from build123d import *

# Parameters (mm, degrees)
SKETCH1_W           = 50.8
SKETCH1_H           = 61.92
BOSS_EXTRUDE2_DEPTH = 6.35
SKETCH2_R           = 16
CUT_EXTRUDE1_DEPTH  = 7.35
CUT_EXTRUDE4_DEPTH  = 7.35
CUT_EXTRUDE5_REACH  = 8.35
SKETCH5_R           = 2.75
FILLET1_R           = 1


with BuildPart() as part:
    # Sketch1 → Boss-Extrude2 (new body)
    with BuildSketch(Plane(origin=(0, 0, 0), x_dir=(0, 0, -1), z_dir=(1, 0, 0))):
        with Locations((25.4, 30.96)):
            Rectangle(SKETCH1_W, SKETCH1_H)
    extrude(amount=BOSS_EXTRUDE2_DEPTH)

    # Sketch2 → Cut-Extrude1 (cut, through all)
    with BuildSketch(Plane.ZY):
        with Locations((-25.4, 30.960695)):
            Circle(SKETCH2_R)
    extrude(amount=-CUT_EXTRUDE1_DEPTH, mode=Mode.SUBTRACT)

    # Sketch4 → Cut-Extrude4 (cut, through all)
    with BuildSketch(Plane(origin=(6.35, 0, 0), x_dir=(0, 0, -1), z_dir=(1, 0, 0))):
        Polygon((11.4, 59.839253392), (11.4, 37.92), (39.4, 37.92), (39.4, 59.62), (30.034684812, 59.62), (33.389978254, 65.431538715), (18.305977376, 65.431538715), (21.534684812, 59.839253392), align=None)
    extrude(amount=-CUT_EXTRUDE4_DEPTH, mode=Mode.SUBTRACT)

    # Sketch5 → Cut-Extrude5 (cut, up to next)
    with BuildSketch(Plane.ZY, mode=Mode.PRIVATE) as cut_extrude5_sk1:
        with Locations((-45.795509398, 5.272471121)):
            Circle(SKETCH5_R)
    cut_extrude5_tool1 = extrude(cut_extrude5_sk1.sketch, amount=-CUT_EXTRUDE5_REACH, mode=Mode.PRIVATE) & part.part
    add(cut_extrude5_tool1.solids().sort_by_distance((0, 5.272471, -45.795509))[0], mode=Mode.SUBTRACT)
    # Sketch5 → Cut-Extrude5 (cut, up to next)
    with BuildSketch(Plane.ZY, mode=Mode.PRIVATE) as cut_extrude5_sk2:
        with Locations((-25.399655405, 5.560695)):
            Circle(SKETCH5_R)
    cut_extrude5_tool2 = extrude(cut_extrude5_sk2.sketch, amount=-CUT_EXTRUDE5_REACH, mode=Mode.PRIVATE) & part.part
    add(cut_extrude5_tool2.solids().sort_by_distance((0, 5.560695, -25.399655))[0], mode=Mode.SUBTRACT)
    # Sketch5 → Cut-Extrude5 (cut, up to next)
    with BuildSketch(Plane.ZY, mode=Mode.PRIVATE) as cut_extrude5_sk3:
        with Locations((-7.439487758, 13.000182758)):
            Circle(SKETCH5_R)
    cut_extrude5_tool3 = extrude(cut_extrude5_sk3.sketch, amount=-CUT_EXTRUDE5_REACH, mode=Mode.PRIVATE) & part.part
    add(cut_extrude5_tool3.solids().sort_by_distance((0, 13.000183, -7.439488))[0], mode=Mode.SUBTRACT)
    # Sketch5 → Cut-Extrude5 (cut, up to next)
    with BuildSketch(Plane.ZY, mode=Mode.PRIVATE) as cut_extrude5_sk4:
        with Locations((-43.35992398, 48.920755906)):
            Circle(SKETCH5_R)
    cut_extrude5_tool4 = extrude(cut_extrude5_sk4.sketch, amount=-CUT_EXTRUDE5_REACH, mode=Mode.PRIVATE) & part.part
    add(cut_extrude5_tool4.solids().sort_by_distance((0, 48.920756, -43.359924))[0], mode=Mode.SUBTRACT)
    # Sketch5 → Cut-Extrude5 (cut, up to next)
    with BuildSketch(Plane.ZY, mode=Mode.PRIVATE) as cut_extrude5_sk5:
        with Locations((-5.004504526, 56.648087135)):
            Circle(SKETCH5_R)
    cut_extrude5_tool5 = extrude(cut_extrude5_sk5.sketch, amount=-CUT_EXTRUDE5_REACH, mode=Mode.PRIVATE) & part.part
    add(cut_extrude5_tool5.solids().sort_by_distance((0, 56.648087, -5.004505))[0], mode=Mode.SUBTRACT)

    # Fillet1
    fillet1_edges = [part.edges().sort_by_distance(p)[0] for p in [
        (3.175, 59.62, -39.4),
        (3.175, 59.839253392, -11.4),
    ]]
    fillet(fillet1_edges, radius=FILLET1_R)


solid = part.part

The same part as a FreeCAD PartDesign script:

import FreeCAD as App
import Part
import Sketcher

V = App.Vector
Q = App.Units.Quantity


def edges_at(feature, points):
    """Names of the edges that pass closest to the given points."""
    edges = feature.Shape.Edges
    near = lambda p: min(range(len(edges)), key=lambda i: edges[i].distToShape(Part.Vertex(*p))[0])
    return sorted({f"Edge{near(p) + 1}" for p in points})

doc = App.newDocument("Part")
body = doc.addObject("PartDesign::Body", "Body")

# Sketch on YZ plane
sketch1 = body.newObject("Sketcher::SketchObject", "Sketch")
sketch1.AttachmentSupport = (doc.getObject("YZ_Plane"), [""])
sketch1.MapMode = "FlatFace"
sketch1.addGeometry(Part.LineSegment(V(62, 0, 0), V(0, 0, 0)), False)
sketch1.addGeometry(Part.LineSegment(V(0, 0, 0), V(0, -51, 0)), False)
sketch1.addGeometry(Part.LineSegment(V(0, -51, 0), V(62, -51, 0)), False)
sketch1.addGeometry(Part.LineSegment(V(62, -51, 0), V(62, 0, 0)), False)
sketch1.addConstraint(Sketcher.Constraint("Coincident", 0, 2, 1, 1))
sketch1.addConstraint(Sketcher.Constraint("Coincident", 1, 2, 2, 1))
sketch1.addConstraint(Sketcher.Constraint("Coincident", 2, 2, 3, 1))
sketch1.addConstraint(Sketcher.Constraint("Coincident", 3, 2, 0, 1))
sketch1.addConstraint(Sketcher.Constraint("Horizontal", 0))
sketch1.addConstraint(Sketcher.Constraint("Vertical", 1))
sketch1.addConstraint(Sketcher.Constraint("Horizontal", 2))
sketch1.addConstraint(Sketcher.Constraint("Vertical", 3))
sketch1.addConstraint(Sketcher.Constraint("Coincident", 0, 2, -1, 1))
sketch1.addConstraint(Sketcher.Constraint("DistanceY", 1, 2, 1, 1, Q("50.8 mm")))
sketch1.addConstraint(Sketcher.Constraint("DistanceX", 0, 2, 0, 1, Q("61.92 mm")))
pad1 = body.newObject("PartDesign::Pad", "Pad")
pad1.Profile = sketch1
pad1.Length = 6.35

# Sketch on YZ plane
sketch2 = body.newObject("Sketcher::SketchObject", "Sketch001")
sketch2.AttachmentSupport = (doc.getObject("YZ_Plane"), [""])
sketch2.MapMode = "FlatFace"
sketch2.addGeometry(Part.Circle(V(31, -25, 0), V(0, 0, 1), 16), False)
sketch2.addConstraint(Sketcher.Constraint("Diameter", 0, Q("32 mm")))
sketch2.addConstraint(Sketcher.Constraint("DistanceY", 0, 3, -1, 1, Q("25.4 mm")))
sketch2.addConstraint(Sketcher.Constraint("DistanceX", -1, 1, 0, 3, Q("30.960695 mm")))
pocket1 = body.newObject("PartDesign::Pocket", "Pocket")
pocket1.Profile = sketch2
pocket1.Type = "ThroughAll"
pocket1.Reversed = True

# Sketch on YZ plane
sketch3 = body.newObject("Sketcher::SketchObject", "Sketch002")
sketch3.AttachmentSupport = (doc.getObject("YZ_Plane"), [""])
sketch3.MapMode = "FlatFace"
sketch3.AttachmentOffset = App.Placement(V(0, 0, 6.35), App.Rotation())
sketch3.addGeometry(Part.LineSegment(V(60, -11, 0), V(38, -11, 0)), False)
sketch3.addGeometry(Part.LineSegment(V(38, -11, 0), V(38, -39, 0)), False)
sketch3.addGeometry(Part.LineSegment(V(38, -39, 0), V(60, -39, 0)), False)
sketch3.addGeometry(Part.LineSegment(V(60, -39, 0), V(60, -30, 0)), False)
sketch3.addGeometry(Part.LineSegment(V(60, -30, 0), V(65, -33, 0)), False)
sketch3.addGeometry(Part.LineSegment(V(65, -33, 0), V(65, -18, 0)), False)
sketch3.addGeometry(Part.LineSegment(V(65, -18, 0), V(60, -22, 0)), False)
sketch3.addGeometry(Part.LineSegment(V(60, -22, 0), V(60, -11, 0)), False)
sketch3.addConstraint(Sketcher.Constraint("Coincident", 0, 2, 1, 1))
sketch3.addConstraint(Sketcher.Constraint("Coincident", 1, 2, 2, 1))
sketch3.addConstraint(Sketcher.Constraint("Coincident", 2, 2, 3, 1))
sketch3.addConstraint(Sketcher.Constraint("Coincident", 3, 2, 4, 1))
sketch3.addConstraint(Sketcher.Constraint("Coincident", 4, 2, 5, 1))
sketch3.addConstraint(Sketcher.Constraint("Coincident", 5, 2, 6, 1))
sketch3.addConstraint(Sketcher.Constraint("Coincident", 6, 2, 7, 1))
sketch3.addConstraint(Sketcher.Constraint("Coincident", 7, 2, 0, 1))
sketch3.addConstraint(Sketcher.Constraint("Horizontal", 0))
sketch3.addConstraint(Sketcher.Constraint("Vertical", 1))
sketch3.addConstraint(Sketcher.Constraint("Horizontal", 2))
sketch3.addConstraint(Sketcher.Constraint("Vertical", 3))
sketch3.addConstraint(Sketcher.Constraint("Vertical", 5))
sketch3.addConstraint(Sketcher.Constraint("Vertical", 7))
sketch3.addConstraint(Sketcher.Constraint("DistanceY", 1, 2, 1, 1, Q("28 mm")))
sketch3.addConstraint(Sketcher.Constraint("Angle", 4, Q("-30 deg")))
sketch3.addConstraint(Sketcher.Constraint("Angle", 6, Q("-150 deg")))
sketch3.addConstraint(Sketcher.Constraint("DistanceX", 2, 1, 2, 2, Q("21.7 mm")))
sketch3.addConstraint(Sketcher.Constraint("DistanceY", 0, 2, -1, 1, Q("11.4 mm")))
sketch3.addConstraint(Sketcher.Constraint("DistanceY", 3, 2, 6, 2, Q("8.5 mm")))
sketch3.addConstraint(Sketcher.Constraint("DistanceY", 5, 1, 5, 2, Q("15.084001 mm")))
sketch3.addConstraint(Sketcher.Constraint("DistanceX", -1, 1, 0, 2, Q("37.92 mm")))
sketch3.addConstraint(Sketcher.Constraint("DistanceX", 0, 2, 0, 1, Q("21.919253 mm")))
sketch3.addConstraint(Sketcher.Constraint("DistanceY", 3, 1, 3, 2, Q("9.365315 mm")))
pocket2 = body.newObject("PartDesign::Pocket", "Pocket001")
pocket2.Profile = sketch3
pocket2.Type = "ThroughAll"

# Sketch on YZ plane
sketch4 = body.newObject("Sketcher::SketchObject", "Sketch003")
sketch4.AttachmentSupport = (doc.getObject("YZ_Plane"), [""])
sketch4.MapMode = "FlatFace"
sketch4.addGeometry(Part.Circle(V(5.3, -45.8, 0), V(0, 0, 1), 2.8), False)
sketch4.addConstraint(Sketcher.Constraint("Diameter", 0, Q("5.5 mm")))
sketch4.addConstraint(Sketcher.Constraint("DistanceX", -1, 1, 0, 3, Q("5.272471 mm")))
sketch4.addConstraint(Sketcher.Constraint("DistanceY", 0, 3, -1, 1, Q("45.795509 mm")))
pocket3 = body.newObject("PartDesign::Pocket", "Pocket002")
pocket3.Profile = sketch4
pocket3.Type = "UpToFirst"
pocket3.Reversed = True

# Sketch on YZ plane
sketch5 = body.newObject("Sketcher::SketchObject", "Sketch004")
sketch5.AttachmentSupport = (doc.getObject("YZ_Plane"), [""])
sketch5.MapMode = "FlatFace"
sketch5.addGeometry(Part.Circle(V(5.6, -25.4, 0), V(0, 0, 1), 2.8), False)
sketch5.addConstraint(Sketcher.Constraint("Diameter", 0, Q("5.5 mm")))
sketch5.addConstraint(Sketcher.Constraint("DistanceX", -1, 1, 0, 3, Q("5.560695 mm")))
sketch5.addConstraint(Sketcher.Constraint("DistanceY", 0, 3, -1, 1, Q("25.399655 mm")))
pocket4 = body.newObject("PartDesign::Pocket", "Pocket003")
pocket4.Profile = sketch5
pocket4.Type = "UpToFirst"
pocket4.Reversed = True

# Sketch on YZ plane
sketch6 = body.newObject("Sketcher::SketchObject", "Sketch005")
sketch6.AttachmentSupport = (doc.getObject("YZ_Plane"), [""])
sketch6.MapMode = "FlatFace"
sketch6.addGeometry(Part.Circle(V(13, -7.4, 0), V(0, 0, 1), 2.8), False)
sketch6.addConstraint(Sketcher.Constraint("Diameter", 0, Q("5.5 mm")))
sketch6.addConstraint(Sketcher.Constraint("DistanceX", -1, 1, 0, 3, Q("13.000183 mm")))
sketch6.addConstraint(Sketcher.Constraint("DistanceY", 0, 3, -1, 1, Q("7.439488 mm")))
pocket5 = body.newObject("PartDesign::Pocket", "Pocket004")
pocket5.Profile = sketch6
pocket5.Type = "UpToFirst"
pocket5.Reversed = True

# Sketch on YZ plane
sketch7 = body.newObject("Sketcher::SketchObject", "Sketch006")
sketch7.AttachmentSupport = (doc.getObject("YZ_Plane"), [""])
sketch7.MapMode = "FlatFace"
sketch7.addGeometry(Part.Circle(V(48.9, -43.4, 0), V(0, 0, 1), 2.8), False)
sketch7.addConstraint(Sketcher.Constraint("Diameter", 0, Q("5.5 mm")))
sketch7.addConstraint(Sketcher.Constraint("DistanceX", -1, 1, 0, 3, Q("48.920756 mm")))
sketch7.addConstraint(Sketcher.Constraint("DistanceY", 0, 3, -1, 1, Q("43.359924 mm")))
pocket6 = body.newObject("PartDesign::Pocket", "Pocket005")
pocket6.Profile = sketch7
pocket6.Type = "UpToFirst"
pocket6.Reversed = True

# Sketch on YZ plane
sketch8 = body.newObject("Sketcher::SketchObject", "Sketch007")
sketch8.AttachmentSupport = (doc.getObject("YZ_Plane"), [""])
sketch8.MapMode = "FlatFace"
sketch8.addGeometry(Part.Circle(V(56.6, -5, 0), V(0, 0, 1), 2.8), False)
sketch8.addConstraint(Sketcher.Constraint("Diameter", 0, Q("5.5 mm")))
sketch8.addConstraint(Sketcher.Constraint("DistanceX", -1, 1, 0, 3, Q("56.648087 mm")))
sketch8.addConstraint(Sketcher.Constraint("DistanceY", 0, 3, -1, 1, Q("5.004505 mm")))
pocket7 = body.newObject("PartDesign::Pocket", "Pocket006")
pocket7.Profile = sketch8
pocket7.Type = "UpToFirst"
pocket7.Reversed = True
doc.recompute()

fillet = body.newObject("PartDesign::Fillet", "Fillet")
fillet.Base = (pocket7, edges_at(pocket7, [(3.175, 59.62, -39.4), (3.175, 59.839, -11.4)]))
fillet.Radius = 1

doc.recompute()
